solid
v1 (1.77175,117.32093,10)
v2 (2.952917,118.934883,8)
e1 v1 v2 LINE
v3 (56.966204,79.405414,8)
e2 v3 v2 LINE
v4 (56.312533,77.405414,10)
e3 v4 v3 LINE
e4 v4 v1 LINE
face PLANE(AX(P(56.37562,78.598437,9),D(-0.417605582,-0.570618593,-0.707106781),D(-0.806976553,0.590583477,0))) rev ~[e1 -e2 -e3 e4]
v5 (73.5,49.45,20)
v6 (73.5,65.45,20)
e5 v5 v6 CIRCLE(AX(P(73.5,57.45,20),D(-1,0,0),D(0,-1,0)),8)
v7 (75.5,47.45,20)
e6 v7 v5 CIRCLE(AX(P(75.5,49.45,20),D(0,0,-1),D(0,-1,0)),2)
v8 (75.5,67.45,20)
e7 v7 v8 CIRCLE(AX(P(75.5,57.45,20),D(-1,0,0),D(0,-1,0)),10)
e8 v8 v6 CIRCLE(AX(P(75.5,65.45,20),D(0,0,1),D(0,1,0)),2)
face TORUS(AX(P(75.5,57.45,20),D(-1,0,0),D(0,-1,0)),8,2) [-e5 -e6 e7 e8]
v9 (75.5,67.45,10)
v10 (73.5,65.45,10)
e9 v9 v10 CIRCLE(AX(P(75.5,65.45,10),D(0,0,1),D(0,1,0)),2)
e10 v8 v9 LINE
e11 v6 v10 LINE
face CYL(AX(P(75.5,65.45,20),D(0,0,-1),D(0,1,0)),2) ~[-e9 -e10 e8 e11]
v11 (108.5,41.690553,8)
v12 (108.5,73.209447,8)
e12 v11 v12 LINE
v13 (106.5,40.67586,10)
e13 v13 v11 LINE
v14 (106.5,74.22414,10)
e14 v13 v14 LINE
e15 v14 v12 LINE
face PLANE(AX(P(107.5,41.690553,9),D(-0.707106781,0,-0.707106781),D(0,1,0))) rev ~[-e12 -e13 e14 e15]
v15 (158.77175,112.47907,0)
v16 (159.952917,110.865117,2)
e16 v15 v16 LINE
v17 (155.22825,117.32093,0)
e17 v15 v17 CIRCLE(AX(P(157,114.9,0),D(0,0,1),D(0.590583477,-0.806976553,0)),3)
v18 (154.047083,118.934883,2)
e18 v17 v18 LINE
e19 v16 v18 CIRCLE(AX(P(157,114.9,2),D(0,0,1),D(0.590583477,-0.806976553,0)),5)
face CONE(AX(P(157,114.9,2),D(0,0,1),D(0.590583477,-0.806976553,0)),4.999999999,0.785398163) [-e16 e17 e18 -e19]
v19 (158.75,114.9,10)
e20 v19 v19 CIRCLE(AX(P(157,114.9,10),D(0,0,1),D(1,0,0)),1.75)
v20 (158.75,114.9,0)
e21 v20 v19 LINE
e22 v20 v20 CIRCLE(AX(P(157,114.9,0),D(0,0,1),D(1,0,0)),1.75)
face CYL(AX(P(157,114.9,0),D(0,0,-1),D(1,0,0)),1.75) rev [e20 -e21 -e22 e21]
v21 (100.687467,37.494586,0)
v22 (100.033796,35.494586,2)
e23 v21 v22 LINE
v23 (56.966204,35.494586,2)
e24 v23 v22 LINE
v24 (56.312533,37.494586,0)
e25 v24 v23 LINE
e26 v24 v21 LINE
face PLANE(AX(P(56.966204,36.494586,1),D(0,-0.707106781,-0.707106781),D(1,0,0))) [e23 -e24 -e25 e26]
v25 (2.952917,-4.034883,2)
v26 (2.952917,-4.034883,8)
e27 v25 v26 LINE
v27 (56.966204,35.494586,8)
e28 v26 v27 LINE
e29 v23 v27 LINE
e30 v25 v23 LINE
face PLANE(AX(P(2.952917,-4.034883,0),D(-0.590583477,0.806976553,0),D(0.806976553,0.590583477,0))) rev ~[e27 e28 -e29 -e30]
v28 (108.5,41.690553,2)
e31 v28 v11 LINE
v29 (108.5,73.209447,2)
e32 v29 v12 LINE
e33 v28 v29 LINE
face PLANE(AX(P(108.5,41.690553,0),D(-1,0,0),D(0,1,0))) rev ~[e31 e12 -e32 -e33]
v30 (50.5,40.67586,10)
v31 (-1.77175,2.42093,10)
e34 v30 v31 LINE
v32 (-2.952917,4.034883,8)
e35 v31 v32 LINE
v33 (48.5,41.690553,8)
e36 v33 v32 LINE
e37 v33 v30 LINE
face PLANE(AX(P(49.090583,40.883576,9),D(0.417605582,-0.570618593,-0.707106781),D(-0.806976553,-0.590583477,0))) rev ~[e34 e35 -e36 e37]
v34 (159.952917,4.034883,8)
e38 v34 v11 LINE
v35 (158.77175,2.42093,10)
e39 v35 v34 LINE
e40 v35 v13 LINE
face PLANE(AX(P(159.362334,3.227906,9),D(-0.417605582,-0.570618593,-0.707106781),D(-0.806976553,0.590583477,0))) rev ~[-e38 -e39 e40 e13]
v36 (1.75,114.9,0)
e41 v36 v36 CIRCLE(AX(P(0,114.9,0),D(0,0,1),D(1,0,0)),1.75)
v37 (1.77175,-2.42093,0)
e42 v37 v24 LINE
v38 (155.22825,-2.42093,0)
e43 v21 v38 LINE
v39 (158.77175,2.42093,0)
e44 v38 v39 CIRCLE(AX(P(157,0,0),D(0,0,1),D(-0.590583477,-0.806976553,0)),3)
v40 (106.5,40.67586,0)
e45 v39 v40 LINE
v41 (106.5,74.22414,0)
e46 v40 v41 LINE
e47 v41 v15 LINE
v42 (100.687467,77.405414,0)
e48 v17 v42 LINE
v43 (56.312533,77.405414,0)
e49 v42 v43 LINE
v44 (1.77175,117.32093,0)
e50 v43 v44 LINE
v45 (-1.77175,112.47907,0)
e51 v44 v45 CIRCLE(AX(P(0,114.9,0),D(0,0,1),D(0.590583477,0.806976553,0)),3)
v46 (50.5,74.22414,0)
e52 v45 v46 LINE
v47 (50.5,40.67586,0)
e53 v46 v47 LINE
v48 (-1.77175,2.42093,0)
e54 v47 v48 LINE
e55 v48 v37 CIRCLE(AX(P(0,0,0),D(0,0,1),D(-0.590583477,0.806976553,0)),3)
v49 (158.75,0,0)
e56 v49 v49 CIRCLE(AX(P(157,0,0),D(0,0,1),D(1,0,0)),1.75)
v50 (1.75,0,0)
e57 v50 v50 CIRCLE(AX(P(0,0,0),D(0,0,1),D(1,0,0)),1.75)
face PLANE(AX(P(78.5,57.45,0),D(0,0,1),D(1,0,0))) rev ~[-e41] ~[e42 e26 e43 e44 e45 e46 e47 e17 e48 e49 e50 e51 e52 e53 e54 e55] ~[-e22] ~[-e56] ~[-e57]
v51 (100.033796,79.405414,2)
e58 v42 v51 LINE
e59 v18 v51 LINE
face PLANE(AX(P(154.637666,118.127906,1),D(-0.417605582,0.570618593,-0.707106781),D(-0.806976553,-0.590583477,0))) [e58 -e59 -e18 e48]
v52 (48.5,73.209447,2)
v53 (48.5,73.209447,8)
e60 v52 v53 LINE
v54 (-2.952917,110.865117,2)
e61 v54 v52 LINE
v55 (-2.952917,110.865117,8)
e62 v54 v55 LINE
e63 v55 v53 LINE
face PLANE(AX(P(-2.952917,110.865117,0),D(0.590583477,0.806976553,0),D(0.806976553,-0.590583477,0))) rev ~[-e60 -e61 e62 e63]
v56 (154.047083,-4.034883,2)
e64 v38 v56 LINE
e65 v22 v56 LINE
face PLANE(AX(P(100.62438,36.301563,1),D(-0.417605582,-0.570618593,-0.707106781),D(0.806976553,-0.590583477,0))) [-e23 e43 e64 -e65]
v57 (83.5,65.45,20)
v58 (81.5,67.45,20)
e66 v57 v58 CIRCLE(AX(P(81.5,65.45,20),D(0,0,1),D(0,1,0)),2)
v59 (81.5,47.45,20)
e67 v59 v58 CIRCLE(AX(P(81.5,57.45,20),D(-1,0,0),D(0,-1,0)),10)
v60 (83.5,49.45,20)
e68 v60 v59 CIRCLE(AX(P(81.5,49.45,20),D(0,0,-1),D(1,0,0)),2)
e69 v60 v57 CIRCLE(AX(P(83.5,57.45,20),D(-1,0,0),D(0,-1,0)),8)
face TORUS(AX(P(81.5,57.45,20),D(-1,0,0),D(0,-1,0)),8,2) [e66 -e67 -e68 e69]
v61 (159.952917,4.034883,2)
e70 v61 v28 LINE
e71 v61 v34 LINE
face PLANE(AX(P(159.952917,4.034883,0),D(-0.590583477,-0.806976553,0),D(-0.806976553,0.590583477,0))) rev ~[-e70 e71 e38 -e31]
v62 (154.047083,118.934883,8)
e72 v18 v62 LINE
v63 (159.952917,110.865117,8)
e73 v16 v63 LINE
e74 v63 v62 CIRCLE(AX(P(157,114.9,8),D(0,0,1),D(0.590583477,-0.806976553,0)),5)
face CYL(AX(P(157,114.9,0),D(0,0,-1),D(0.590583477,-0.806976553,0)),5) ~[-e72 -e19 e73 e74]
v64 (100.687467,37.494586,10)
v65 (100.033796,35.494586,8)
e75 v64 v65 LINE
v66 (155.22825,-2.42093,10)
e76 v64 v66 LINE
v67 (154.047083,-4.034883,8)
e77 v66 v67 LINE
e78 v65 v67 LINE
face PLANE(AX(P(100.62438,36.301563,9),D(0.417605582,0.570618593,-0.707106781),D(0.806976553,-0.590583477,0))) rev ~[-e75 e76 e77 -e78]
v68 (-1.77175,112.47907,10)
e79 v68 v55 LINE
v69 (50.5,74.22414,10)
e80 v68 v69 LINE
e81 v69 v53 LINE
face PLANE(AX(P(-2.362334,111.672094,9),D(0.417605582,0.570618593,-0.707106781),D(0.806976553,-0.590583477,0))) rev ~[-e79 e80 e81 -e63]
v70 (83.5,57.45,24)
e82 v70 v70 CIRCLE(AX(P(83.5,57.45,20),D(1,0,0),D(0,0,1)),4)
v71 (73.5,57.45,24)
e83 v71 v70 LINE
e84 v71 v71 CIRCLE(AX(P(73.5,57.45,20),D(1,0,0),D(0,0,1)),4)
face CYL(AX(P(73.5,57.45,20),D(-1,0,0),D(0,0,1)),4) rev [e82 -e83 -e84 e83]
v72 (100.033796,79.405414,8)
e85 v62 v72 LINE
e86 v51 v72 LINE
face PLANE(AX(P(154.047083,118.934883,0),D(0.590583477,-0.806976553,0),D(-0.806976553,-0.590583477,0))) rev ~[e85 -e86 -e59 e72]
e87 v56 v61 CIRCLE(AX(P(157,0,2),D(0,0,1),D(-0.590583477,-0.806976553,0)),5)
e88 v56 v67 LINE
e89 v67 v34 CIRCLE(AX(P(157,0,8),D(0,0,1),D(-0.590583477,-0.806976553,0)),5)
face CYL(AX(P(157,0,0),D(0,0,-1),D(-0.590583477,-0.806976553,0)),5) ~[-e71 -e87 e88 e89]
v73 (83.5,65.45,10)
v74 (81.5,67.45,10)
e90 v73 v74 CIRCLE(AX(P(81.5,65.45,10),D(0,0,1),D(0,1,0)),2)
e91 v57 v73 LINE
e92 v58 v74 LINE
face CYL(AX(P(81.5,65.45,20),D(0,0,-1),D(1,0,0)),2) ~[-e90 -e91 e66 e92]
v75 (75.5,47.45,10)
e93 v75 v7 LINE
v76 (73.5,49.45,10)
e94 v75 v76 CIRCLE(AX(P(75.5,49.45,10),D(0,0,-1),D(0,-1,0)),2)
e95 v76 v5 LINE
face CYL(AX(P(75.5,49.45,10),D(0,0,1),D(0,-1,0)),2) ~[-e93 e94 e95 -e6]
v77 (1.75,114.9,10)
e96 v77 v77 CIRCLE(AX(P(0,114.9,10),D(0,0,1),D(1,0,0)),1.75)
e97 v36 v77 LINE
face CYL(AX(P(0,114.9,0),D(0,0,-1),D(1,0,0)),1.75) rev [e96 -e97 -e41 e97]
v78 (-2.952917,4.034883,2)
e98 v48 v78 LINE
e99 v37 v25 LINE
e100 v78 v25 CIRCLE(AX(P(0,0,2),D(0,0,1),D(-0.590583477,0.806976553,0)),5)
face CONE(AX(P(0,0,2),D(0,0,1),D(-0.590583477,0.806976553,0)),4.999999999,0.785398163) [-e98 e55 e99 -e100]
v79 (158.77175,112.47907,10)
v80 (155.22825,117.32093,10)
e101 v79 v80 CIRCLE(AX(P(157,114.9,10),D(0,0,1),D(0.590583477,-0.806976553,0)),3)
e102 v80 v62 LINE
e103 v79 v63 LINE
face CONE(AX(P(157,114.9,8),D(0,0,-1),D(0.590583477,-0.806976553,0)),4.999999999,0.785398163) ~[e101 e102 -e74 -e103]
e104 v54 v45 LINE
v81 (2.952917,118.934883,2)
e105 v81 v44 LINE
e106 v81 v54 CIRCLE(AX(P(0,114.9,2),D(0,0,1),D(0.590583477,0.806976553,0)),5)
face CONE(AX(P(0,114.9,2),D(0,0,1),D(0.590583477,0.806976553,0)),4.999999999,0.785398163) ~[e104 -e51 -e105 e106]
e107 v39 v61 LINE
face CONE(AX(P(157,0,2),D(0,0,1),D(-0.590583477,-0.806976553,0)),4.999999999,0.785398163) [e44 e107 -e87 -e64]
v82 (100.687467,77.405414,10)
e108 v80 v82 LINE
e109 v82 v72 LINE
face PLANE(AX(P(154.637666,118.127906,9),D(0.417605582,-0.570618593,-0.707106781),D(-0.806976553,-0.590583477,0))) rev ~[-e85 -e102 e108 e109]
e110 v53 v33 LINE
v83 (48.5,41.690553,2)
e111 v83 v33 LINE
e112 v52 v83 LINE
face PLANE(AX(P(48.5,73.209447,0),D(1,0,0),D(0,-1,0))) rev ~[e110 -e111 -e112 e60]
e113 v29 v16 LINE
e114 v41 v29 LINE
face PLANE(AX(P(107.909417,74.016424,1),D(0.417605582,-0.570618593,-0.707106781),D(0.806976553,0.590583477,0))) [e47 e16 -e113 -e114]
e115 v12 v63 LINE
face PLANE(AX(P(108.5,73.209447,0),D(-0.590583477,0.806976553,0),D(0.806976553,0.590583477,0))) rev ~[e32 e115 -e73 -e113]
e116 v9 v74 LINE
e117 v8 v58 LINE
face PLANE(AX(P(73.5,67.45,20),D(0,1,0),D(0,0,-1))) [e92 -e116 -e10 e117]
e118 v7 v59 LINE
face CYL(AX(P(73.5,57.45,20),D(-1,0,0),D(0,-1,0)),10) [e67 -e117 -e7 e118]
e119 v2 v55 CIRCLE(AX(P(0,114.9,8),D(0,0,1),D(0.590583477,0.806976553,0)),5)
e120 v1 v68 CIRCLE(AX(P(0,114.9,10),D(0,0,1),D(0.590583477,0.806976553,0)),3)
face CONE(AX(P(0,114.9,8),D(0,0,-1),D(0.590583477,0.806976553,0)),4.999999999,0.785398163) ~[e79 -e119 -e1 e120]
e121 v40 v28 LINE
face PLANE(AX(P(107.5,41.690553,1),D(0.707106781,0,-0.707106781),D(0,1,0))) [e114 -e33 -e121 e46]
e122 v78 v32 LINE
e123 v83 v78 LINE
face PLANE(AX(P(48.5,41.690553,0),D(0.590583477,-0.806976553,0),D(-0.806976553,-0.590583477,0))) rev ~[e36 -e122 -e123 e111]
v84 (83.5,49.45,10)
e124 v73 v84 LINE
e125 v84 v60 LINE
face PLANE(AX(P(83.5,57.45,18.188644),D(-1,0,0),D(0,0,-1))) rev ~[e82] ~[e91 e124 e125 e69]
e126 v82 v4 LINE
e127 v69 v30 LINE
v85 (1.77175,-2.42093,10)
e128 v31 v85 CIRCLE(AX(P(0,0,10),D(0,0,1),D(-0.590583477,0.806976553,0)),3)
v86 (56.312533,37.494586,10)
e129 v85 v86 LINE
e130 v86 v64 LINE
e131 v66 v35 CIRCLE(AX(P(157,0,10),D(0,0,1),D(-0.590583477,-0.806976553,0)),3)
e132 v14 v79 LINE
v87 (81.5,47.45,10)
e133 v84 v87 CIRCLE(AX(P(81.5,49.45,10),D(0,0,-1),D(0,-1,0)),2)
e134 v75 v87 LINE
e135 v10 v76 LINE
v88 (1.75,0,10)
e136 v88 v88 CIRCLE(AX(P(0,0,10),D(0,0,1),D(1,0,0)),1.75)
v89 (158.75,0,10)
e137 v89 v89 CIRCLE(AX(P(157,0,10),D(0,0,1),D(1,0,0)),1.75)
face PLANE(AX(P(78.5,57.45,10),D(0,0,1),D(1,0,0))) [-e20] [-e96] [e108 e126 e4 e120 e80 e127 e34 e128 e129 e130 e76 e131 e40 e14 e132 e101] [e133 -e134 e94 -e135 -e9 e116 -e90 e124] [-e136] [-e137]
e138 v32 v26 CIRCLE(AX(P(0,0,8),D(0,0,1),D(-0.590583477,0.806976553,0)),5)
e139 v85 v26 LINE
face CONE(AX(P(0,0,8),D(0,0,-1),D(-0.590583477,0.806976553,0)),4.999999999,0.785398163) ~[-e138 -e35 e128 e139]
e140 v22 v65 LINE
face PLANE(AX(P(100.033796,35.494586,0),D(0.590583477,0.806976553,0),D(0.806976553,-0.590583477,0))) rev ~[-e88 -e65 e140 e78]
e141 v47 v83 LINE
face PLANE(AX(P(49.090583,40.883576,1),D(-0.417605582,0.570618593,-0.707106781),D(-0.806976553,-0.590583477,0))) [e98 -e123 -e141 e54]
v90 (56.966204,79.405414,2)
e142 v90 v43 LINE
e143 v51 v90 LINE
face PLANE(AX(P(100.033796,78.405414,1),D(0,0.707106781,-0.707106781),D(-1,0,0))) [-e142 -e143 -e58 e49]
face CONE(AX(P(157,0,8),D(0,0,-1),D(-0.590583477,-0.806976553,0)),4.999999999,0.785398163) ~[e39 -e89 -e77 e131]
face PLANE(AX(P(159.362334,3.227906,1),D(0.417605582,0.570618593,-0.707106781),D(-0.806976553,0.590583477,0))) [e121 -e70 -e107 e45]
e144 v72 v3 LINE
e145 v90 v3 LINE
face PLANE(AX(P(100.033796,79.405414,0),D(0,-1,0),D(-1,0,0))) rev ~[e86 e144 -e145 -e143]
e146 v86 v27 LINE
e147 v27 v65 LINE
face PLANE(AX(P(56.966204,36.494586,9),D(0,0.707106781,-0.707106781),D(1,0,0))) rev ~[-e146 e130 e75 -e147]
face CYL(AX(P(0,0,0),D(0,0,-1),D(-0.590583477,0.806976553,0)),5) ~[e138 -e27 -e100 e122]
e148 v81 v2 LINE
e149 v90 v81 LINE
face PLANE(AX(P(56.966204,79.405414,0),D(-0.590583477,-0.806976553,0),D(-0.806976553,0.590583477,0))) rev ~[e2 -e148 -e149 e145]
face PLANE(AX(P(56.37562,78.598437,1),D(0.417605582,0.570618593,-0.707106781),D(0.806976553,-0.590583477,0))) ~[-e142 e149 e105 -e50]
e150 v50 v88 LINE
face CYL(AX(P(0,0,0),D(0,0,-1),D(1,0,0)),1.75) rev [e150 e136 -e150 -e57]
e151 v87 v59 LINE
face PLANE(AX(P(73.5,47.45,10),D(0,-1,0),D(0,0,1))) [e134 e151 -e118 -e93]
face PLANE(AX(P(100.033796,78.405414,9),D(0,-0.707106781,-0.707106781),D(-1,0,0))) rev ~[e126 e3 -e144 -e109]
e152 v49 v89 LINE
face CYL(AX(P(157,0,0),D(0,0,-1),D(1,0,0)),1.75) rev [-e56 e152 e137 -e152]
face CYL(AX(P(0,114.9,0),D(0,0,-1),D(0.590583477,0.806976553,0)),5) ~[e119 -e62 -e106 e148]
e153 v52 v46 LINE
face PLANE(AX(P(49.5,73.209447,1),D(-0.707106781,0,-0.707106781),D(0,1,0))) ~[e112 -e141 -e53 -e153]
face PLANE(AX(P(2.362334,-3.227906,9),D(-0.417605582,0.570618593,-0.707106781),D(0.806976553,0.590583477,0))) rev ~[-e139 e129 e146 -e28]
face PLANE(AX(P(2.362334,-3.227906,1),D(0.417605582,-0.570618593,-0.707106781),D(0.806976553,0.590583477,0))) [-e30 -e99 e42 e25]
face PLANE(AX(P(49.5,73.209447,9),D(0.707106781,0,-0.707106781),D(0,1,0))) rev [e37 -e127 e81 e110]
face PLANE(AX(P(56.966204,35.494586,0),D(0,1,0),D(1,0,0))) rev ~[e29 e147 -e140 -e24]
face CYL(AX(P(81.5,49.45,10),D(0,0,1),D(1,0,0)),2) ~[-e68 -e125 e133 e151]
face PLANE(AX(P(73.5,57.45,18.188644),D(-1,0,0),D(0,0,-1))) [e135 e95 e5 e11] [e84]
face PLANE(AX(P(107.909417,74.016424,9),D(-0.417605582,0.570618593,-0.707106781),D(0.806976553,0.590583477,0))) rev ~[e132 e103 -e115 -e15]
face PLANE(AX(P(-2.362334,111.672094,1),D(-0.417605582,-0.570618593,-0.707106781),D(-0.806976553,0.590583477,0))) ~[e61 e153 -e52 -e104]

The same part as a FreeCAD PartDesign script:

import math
import FreeCAD as App
import Part
import Sketcher
from FreeCAD import Vector
Q = App.Units.Quantity


def edges_at(feature, points):
    """Names of the edges that pass closest to the given points."""
    edges = feature.Shape.Edges
    near = lambda p: min(range(len(edges)), key=lambda i: edges[i].distToShape(Part.Vertex(*p))[0])
    return sorted({f"Edge{near(p) + 1}" for p in points})

doc = App.newDocument("Part")
body = doc.addObject("PartDesign::Body", "Body")

sketch1 = doc.addObject("Sketcher::SketchObject", "Sketch")
body.addObject(sketch1)
sketch1.AttachmentSupport = (doc.XY_Plane, [""])
sketch1.MapMode = "FlatFace"
sketch1.addGeometry(Part.LineSegment(Vector(-3, 110.9, 0), Vector(48.5, 73.2, 0)), False)
sketch1.addGeometry(Part.LineSegment(Vector(48.5, 73.2, 0), Vector(48.5, 41.7, 0)), False)
sketch1.addGeometry(Part.LineSegment(Vector(48.5, 41.7, 0), Vector(-3, 4, 0)), False)
sketch1.addGeometry(Part.ArcOfCircle(Part.Circle(Vector(0, 0, 0), Vector(0, 0, 1), 5), math.radians(126), math.radians(306)), False)
sketch1.addGeometry(Part.LineSegment(Vector(3, -4, 0), Vector(57, 35.5, 0)), False)
sketch1.addGeometry(Part.LineSegment(Vector(57, 35.5, 0), Vector(100, 35.5, 0)), False)
sketch1.addGeometry(Part.LineSegment(Vector(100, 35.5, 0), Vector(154, -4, 0)), False)
sketch1.addGeometry(Part.ArcOfCircle(Part.Circle(Vector(157, 0, 0), Vector(0, 0, 1), 5), math.radians(-126), math.radians(54)), False)
sketch1.addGeometry(Part.LineSegment(Vector(160, 4, 0), Vector(108.5, 41.7, 0)), False)
sketch1.addGeometry(Part.LineSegment(Vector(108.5, 41.7, 0), Vector(108.5, 73.2, 0)), False)
sketch1.addGeometry(Part.LineSegment(Vector(108.5, 73.2, 0), Vector(160, 110.9, 0)), False)
sketch1.addGeometry(Part.ArcOfCircle(Part.Circle(Vector(157, 114.9, 0), Vector(0, 0, 1), 5), math.radians(-54), math.radians(126)), False)
sketch1.addGeometry(Part.LineSegment(Vector(154, 118.9, 0), Vector(100, 79.4, 0)), False)
sketch1.addGeometry(Part.LineSegment(Vector(100, 79.4, 0), Vector(57, 79.4, 0)), False)
sketch1.addGeometry(Part.LineSegment(Vector(57, 79.4, 0), Vector(3, 118.9, 0)), False)
sketch1.addGeometry(Part.ArcOfCircle(Part.Circle(Vector(0, 114.9, 0), Vector(0, 0, 1), 5), math.radians(54), math.radians(234)), False)
sketch1.addGeometry(Part.Circle(Vector(0, 0, 0), Vector(0, 0, 1), 1.8), False)
sketch1.addGeometry(Part.Circle(Vector(157, 0, 0), Vector(0, 0, 1), 1.8), False)
sketch1.addGeometry(Part.Circle(Vector(0, 114.9, 0), Vector(0, 0, 1), 1.8), False)
sketch1.addGeometry(Part.Circle(Vector(157, 114.9, 0), Vector(0, 0, 1), 1.8), False)
sketch1.addConstraint(Sketcher.Constraint("Coincident", 0, 2, 1, 1))
sketch1.addConstraint(Sketcher.Constraint("Coincident", 1, 2, 2, 1))
sketch1.addConstraint(Sketcher.Constraint("Tangent", 2, 2, 3, 1))
sketch1.addConstraint(Sketcher.Constraint("Tangent", 3, 2, 4, 1))
sketch1.addConstraint(Sketcher.Constraint("Coincident", 4, 2, 5, 1))
sketch1.addConstraint(Sketcher.Constraint("Coincident", 5, 2, 6, 1))
sketch1.addConstraint(Sketcher.Constraint("Tangent", 6, 2, 7, 1))
sketch1.addConstraint(Sketcher.Constraint("Tangent", 7, 2, 8, 1))
sketch1.addConstraint(Sketcher.Constraint("Coincident", 8, 2, 9, 1))
sketch1.addConstraint(Sketcher.Constraint("Coincident", 9, 2, 10, 1))
sketch1.addConstraint(Sketcher.Constraint("Tangent", 10, 2, 11, 1))
sketch1.addConstraint(Sketcher.Constraint("Tangent", 11, 2, 12, 1))
sketch1.addConstraint(Sketcher.Constraint("Coincident", 12, 2, 13, 1))
sketch1.addConstraint(Sketcher.Constraint("Coincident", 13, 2, 14, 1))
sketch1.addConstraint(Sketcher.Constraint("Tangent", 14, 2, 15, 1))
sketch1.addConstraint(Sketcher.Constraint("Tangent", 15, 2, 0, 1))
sketch1.addConstraint(Sketcher.Constraint("Vertical", 1))
sketch1.addConstraint(Sketcher.Constraint("Horizontal", 5))
sketch1.addConstraint(Sketcher.Constraint("Vertical", 9))
sketch1.addConstraint(Sketcher.Constraint("Horizontal", 13))
sketch1.addConstraint(Sketcher.Constraint("Coincident", 3, 3, -1, 1))
sketch1.addConstraint(Sketcher.Constraint("Coincident", 16, 3, -1, 1))
sketch1.addConstraint(Sketcher.Constraint("Coincident", 17, 3, 7, 3))
sketch1.addConstraint(Sketcher.Constraint("Coincident", 18, 3, 15, 3))
sketch1.addConstraint(Sketcher.Constraint("Coincident", 19, 3, 11, 3))
sketch1.addConstraint(Sketcher.Constraint("Equal", 3, 7))
sketch1.addConstraint(Sketcher.Constraint("Equal", 7, 11))
sketch1.addConstraint(Sketcher.Constraint("Equal", 11, 15))
sketch1.addConstraint(Sketcher.Constraint("Equal", 16, 17))
sketch1.addConstraint(Sketcher.Constraint("Equal", 17, 18))
sketch1.addConstraint(Sketcher.Constraint("Equal", 18, 19))
sketch1.addConstraint(Sketcher.Constraint("PointOnObject", 7, 3, -1))
sketch1.addConstraint(Sketcher.Constraint("PointOnObject", 15, 3, -2))
sketch1.addConstraint(Sketcher.Constraint("Parallel", 2, 4))
sketch1.addConstraint(Sketcher.Constraint("Parallel", 0, 6))
sketch1.addConstraint(Sketcher.Constraint("Parallel", 6, 8))
sketch1.addConstraint(Sketcher.Constraint("Parallel", 4, 10))
sketch1.addConstraint(Sketcher.Constraint("Parallel", 10, 12))
sketch1.addConstraint(Sketcher.Constraint("Parallel", 8, 14))
sketch1.addConstraint(Sketcher.Constraint("Horizontal", 11, 3, 15, 3))
sketch1.addConstraint(Sketcher.Constraint("Horizontal", 3, 2, 6, 2))
sketch1.addConstraint(Sketcher.Constraint("Horizontal", 1, 2, 8, 2))
sketch1.addConstraint(Sketcher.Constraint("Horizontal", 0, 2, 9, 2))
sketch1.addConstraint(Sketcher.Constraint("Vertical", 5, 2, 12, 2))
sketch1.addConstraint(Sketcher.Constraint("Radius", 3, Q("5 mm")))
sketch1.addConstraint(Sketcher.Constraint("Diameter", 16, Q("3.5 mm")))
sketch1.addConstraint(Sketcher.Constraint("DistanceX", -1, 1, 7, 3, Q("157 mm")))
sketch1.addConstraint(Sketcher.Constraint("DistanceX", 1, 2, 8, 2, Q("60 mm")))
sketch1.addConstraint(Sketcher.Constraint("DistanceY", -1, 1, 11, 3, Q("114.9 mm")))
sketch1.addConstraint(Sketcher.Constraint("DistanceX", 5, 1, 5, 2, Q("43.067593 mm")))
sketch1.addConstraint(Sketcher.Constraint("DistanceY", 1, 2, 1, 1, Q("31.518894 mm")))
pad1 = doc.addObject("PartDesign::Pad", "Pad")
body.addObject(pad1)
pad1.Profile = sketch1
pad1.Length = 10

sketch2 = doc.addObject("Sketcher::SketchObject", "Sketch001")
body.addObject(sketch2)
sketch2.AttachmentSupport = (doc.YZ_Plane, [""])
sketch2.MapMode = "FlatFace"
sketch2.AttachmentOffset = App.Placement(Vector(0, 0, 73.5), App.Rotation())
sketch2.addGeometry(Part.LineSegment(Vector(47.5, 20, 0), Vector(47.5, 10, 0)), False)
sketch2.addGeometry(Part.LineSegment(Vector(47.5, 10, 0), Vector(67.5, 10, 0)), False)
sketch2.addGeometry(Part.LineSegment(Vector(67.5, 10, 0), Vector(67.5, 20, 0)), False)
sketch2.addGeometry(Part.ArcOfCircle(Part.Circle(Vector(57.5, 20, 0), Vector(0, 0, 1), 10), math.radians(0), math.radians(180)), False)
sketch2.addGeometry(Part.Circle(Vector(57.5, 20, 0), Vector(0, 0, 1), 4), False)
sketch2.addConstraint(Sketcher.Constraint("Coincident", 0, 2, 1, 1))
sketch2.addConstraint(Sketcher.Constraint("Coincident", 1, 2, 2, 1))
sketch2.addConstraint(Sketcher.Constraint("Tangent", 2, 2, 3, 1))
sketch2.addConstraint(Sketcher.Constraint("Tangent", 3, 2, 0, 1))
sketch2.addConstraint(Sketcher.Constraint("Vertical", 0))
sketch2.addConstraint(Sketcher.Constraint("Horizontal", 1))
sketch2.addConstraint(Sketcher.Constraint("Vertical", 2))
sketch2.addConstraint(Sketcher.Constraint("Coincident", 4, 3, 3, 3))
sketch2.addConstraint(Sketcher.Constraint("Diameter", 4, Q("8 mm")))
sketch2.addConstraint(Sketcher.Constraint("Radius", 3, Q("10 mm")))
sketch2.addConstraint(Sketcher.Constraint("DistanceY", 0, 2, 0, 1, Q("10 mm")))
sketch2.addConstraint(Sketcher.Constraint("DistanceY", -1, 1, 3, 3, Q("20 mm")))
sketch2.addConstraint(Sketcher.Constraint("DistanceX", -1, 1, 3, 3, Q("57.45 mm")))
pad2 = doc.addObject("PartDesign::Pad", "Pad001")
body.addObject(pad2)
pad2.Profile = sketch2
pad2.Length = 10
doc.recompute()

chamfer = doc.addObject("PartDesign::Chamfer", "Chamfer")
body.addObject(chamfer)
chamfer.Base = (pad2, edges_at(pad2, [
    (134.226, 92.037, 10),
    (161.035, -2.953, 0),
    (127.04, 15.73, 0),
    (78.5, 35.495, 0),
    (161.035, 117.853, 10),
    (29.96, 15.73, 0),
    (-4.035, -2.953, 0),
    (22.774, 22.863, 0),
    (48.5, 57.45, 0),
    (22.774, 92.037, 0),
    (-4.035, 117.853, 0),
    (29.96, 99.17, 0),
    (78.5, 79.405, 0),
    (127.04, 99.17, 0),
    (161.035, 117.853, 0),
    (127.04, 99.17, 10),
    (134.226, 92.037, 0),
    (108.5, 57.45, 0),
    (134.226, 22.863, 0),
    (78.5, 79.405, 10),
    (29.96, 99.17, 10),
    (-4.035, 117.853, 10),
    (22.774, 92.037, 10),
    (48.5, 57.45, 10),
    (22.774, 22.863, 10),
    (-4.035, -2.953, 10),
    (134.226, 22.863, 10),
    (29.96, 15.73, 10),
    (78.5, 35.495, 10),
    (127.04, 15.73, 10),
    (161.035, -2.953, 10),
    (108.5, 57.45, 10),
]))
chamfer.Size = 2
doc.recompute()

fillet = doc.addObject("PartDesign::Fillet", "Fillet")
body.addObject(fillet)
fillet.Base = (chamfer, edges_at(chamfer, [
    (83.5, 67.45, 15),
    (83.5, 57.45, 30),
    (83.5, 47.45, 15),
    (73.5, 67.45, 15),
    (73.5, 57.45, 30),
    (73.5, 47.45, 15),
]))
fillet.Radius = 2

doc.recompute()
